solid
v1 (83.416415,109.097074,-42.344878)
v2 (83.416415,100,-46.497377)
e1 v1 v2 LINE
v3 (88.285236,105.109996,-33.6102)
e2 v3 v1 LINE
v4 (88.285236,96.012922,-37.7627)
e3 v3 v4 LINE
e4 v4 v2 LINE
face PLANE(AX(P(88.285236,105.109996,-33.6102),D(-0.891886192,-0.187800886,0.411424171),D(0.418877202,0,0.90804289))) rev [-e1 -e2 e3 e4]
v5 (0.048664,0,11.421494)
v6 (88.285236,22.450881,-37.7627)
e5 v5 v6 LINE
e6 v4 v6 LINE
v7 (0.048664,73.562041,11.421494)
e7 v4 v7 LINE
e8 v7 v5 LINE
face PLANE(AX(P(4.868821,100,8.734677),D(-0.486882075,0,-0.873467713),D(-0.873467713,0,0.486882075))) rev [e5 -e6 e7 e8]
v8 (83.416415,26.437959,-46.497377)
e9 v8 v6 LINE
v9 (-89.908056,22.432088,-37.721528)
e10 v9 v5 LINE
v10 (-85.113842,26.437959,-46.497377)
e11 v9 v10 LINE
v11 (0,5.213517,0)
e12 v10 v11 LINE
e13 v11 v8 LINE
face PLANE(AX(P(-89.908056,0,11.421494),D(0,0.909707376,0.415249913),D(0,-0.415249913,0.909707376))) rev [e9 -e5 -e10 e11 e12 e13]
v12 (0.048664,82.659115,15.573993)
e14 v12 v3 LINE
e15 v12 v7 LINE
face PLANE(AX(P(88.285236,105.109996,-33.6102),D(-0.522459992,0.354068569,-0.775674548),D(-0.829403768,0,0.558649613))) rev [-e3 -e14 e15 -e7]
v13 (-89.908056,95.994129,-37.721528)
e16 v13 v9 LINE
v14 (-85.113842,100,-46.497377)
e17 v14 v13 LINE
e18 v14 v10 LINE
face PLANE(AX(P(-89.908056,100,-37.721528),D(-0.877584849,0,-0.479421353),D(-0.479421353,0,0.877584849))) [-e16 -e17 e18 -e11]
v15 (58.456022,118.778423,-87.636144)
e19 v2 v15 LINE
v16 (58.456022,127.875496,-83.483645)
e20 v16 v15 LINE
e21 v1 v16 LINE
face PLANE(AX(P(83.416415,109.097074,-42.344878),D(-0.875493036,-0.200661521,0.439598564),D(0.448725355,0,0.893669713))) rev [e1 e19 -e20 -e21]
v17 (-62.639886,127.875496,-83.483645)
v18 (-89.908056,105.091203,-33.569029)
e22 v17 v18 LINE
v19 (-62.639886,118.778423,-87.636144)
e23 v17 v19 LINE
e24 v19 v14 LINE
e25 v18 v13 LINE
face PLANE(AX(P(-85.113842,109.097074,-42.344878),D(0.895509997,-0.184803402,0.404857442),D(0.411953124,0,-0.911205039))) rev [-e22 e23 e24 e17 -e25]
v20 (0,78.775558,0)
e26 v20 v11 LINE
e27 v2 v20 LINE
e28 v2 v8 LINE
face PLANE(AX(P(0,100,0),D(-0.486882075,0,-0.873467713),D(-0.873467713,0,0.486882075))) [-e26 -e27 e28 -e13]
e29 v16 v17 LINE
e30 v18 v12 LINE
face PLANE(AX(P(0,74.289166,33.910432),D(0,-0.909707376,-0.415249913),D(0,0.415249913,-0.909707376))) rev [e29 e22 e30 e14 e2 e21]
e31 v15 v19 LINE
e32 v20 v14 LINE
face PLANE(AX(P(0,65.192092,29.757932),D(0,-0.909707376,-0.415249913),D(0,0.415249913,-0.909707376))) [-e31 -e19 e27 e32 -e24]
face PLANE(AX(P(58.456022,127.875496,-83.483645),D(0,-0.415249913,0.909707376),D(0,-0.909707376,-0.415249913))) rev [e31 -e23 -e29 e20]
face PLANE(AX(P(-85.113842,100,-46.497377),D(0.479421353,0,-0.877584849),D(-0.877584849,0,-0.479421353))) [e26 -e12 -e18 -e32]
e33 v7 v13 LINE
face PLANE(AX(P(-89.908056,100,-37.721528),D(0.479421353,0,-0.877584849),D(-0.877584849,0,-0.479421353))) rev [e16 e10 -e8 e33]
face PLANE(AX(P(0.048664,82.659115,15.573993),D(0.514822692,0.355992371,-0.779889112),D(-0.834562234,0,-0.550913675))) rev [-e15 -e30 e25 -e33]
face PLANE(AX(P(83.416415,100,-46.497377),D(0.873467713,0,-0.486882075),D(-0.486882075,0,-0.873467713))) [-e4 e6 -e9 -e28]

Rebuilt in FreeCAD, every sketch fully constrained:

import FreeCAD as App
import Part
import Sketcher
Q = App.Units.Quantity

doc = App.newDocument("Part")
params = doc.addObject("Spreadsheet::Sheet", "Params")
for row, (alias, value) in enumerate([
    ("sketch1_length", "10 mm"),
    ("pad1_length", "100 mm"),
    ("pad2_length", "10 mm"),
], start=1):
    params.set(f"A{row}", alias)
    params.set(f"B{row}", "=" + value)
    params.setAlias(f"B{row}", alias)

body = doc.addObject("PartDesign::Body", "Body")

# Sketch on XZ plane
sketch1 = body.newObject("Sketcher::SketchObject", "Sketch")
sketch1.AttachmentSupport = (doc.getObject("XZ_Plane"), [""])
sketch1.MapMode = "FlatFace"
sketch1.addGeometry([
    Part.LineSegment(App.Vector(0, 0, 0), App.Vector(-85, -46, 0)),  # 0
    Part.LineSegment(App.Vector(-85, -46, 0), App.Vector(-90, -38, 0)),  # 1
    Part.LineSegment(App.Vector(-90, -38, 0), App.Vector(0, 11, 0)),  # 2
    Part.LineSegment(App.Vector(0, 11, 0), App.Vector(88, -38, 0)),  # 3
    Part.LineSegment(App.Vector(88, -38, 0), App.Vector(83, -46, 0)),  # 4
    Part.LineSegment(App.Vector(83, -46, 0), App.Vector(0, 0, 0)),  # 5
], False)
sketch1.addConstraint([
    Sketcher.Constraint("Coincident", 0, 2, 1, 1),
    Sketcher.Constraint("Coincident", 1, 2, 2, 1),
    Sketcher.Constraint("Coincident", 2, 2, 3, 1),
    Sketcher.Constraint("Coincident", 3, 2, 4, 1),
    Sketcher.Constraint("Coincident", 4, 2, 5, 1),
    Sketcher.Constraint("Coincident", 5, 2, 0, 1),
    Sketcher.Constraint("Coincident", 5, 2, -1, 1),
    Sketcher.Constraint("Perpendicular", 0, 1),
    Sketcher.Constraint("Perpendicular", 1, 2),
    Sketcher.Constraint("Perpendicular", 3, 4),
    Sketcher.Constraint("Perpendicular", 4, 5),
    Sketcher.Constraint("Horizontal", 0, 2, 4, 2),
    Sketcher.Constraint("Equal", 1, 4),
    Sketcher.Constraint("Distance", 1, Q("10 mm")),
    Sketcher.Constraint("Distance", 3, Q("101.018699 mm")),
    Sketcher.Constraint("DistanceY", 3, 2, -1, 1, Q("37.7627 mm")),
    Sketcher.Constraint("Distance", 2, Q("102.504868 mm")),
])
sketch1.setExpression("Constraints[13]", "Params.sketch1_length")
pad1 = body.newObject("PartDesign::Pad", "Pad")
pad1.Profile = sketch1
pad1.setExpression("Length", "Params.pad1_length")
pad1.Reversed = True

# Sketch on YZ plane
sketch2 = body.newObject("Sketcher::SketchObject", "Sketch001")
sketch2.AttachmentSupport = (doc.getObject("YZ_Plane"), [""])
sketch2.MapMode = "FlatFace"
sketch2.addGeometry([
    Part.LineSegment(App.Vector(26, -46, 0), App.Vector(0, 11, 0)),  # 0
    Part.LineSegment(App.Vector(0, 11, 0), App.Vector(0, -46, 0)),  # 1
    Part.LineSegment(App.Vector(0, -46, 0), App.Vector(26, -46, 0)),  # 2
    Part.LineSegment(App.Vector(74, 11, 0), App.Vector(100, -46, 0)),  # 3
    Part.LineSegment(App.Vector(100, -46, 0), App.Vector(100, 11, 0)),  # 4
    Part.LineSegment(App.Vector(100, 11, 0), App.Vector(74, 11, 0)),  # 5
], False)
sketch2.addConstraint([
    Sketcher.Constraint("Coincident", 0, 2, 1, 1),
    Sketcher.Constraint("Coincident", 1, 2, 2, 1),
    Sketcher.Constraint("Coincident", 2, 2, 0, 1),
    Sketcher.Constraint("Coincident", 3, 2, 4, 1),
    Sketcher.Constraint("Coincident", 4, 2, 5, 1),
    Sketcher.Constraint("Coincident", 5, 2, 3, 1),
    Sketcher.Constraint("Vertical", 1),
    Sketcher.Constraint("Horizontal", 2),
    Sketcher.Constraint("Vertical", 4),
    Sketcher.Constraint("Horizontal", 5),
    Sketcher.Constraint("PointOnObject", 0, 2, -2),
    Sketcher.Constraint("Parallel", 0, 3),
    Sketcher.Constraint("Horizontal", 2, 2, 3, 2),
    Sketcher.Constraint("Horizontal", 0, 2, 4, 2),
    Sketcher.Constraint("DistanceX", -1, 1, 3, 2, Q("100 mm")),
    Sketcher.Constraint("DistanceX", 2, 1, 2, 2, Q("26.437959 mm")),
    Sketcher.Constraint("DistanceY", 1, 2, 1, 1, Q("57.918871 mm")),
    Sketcher.Constraint("DistanceY", -1, 1, 0, 2, Q("11.421494 mm")),
])
pocket1 = body.newObject("PartDesign::Pocket", "Pocket")
pocket1.Profile = sketch2
pocket1.Type = "ThroughAll"
pocket1.Midplane = True

# Sketch on an angled plane
sketch3 = body.newObject("Sketcher::SketchObject", "Sketch002")
sketch3.Placement = App.Placement(App.Vector(0, 65.192092, 29.757932), App.Rotation(App.Vector(1, 0, 0), App.Vector(0, 0.415249913, -0.909707376), App.Vector(0, 0.909707376, 0.415249913), "ZXY"))
sketch3.addGeometry([
    Part.LineSegment(App.Vector(88, 74, 0), App.Vector(83, 84, 0)),  # 0
    Part.LineSegment(App.Vector(83, 84, 0), App.Vector(58, 129, 0)),  # 1
    Part.LineSegment(App.Vector(58, 129, 0), App.Vector(-63, 129, 0)),  # 2
    Part.LineSegment(App.Vector(-63, 129, 0), App.Vector(-85, 84, 0)),  # 3
    Part.LineSegment(App.Vector(-85, 84, 0), App.Vector(-90, 74, 0)),  # 4
    Part.LineSegment(App.Vector(-90, 74, 0), App.Vector(0, 20, 0)),  # 5
    Part.LineSegment(App.Vector(0, 20, 0), App.Vector(88, 74, 0)),  # 6
], False)
sketch3.addConstraint([
    Sketcher.Constraint("Coincident", 0, 2, 1, 1),
    Sketcher.Constraint("Coincident", 1, 2, 2, 1),
    Sketcher.Constraint("Coincident", 2, 2, 3, 1),
    Sketcher.Constraint("Coincident", 3, 2, 4, 1),
    Sketcher.Constraint("Coincident", 4, 2, 5, 1),
    Sketcher.Constraint("Coincident", 5, 2, 6, 1),
    Sketcher.Constraint("Coincident", 6, 2, 0, 1),
    Sketcher.Constraint("Horizontal", 2),
    Sketcher.Constraint("Parallel", 3, 4),
    Sketcher.Constraint("Horizontal", 0, 2, 3, 2),
    Sketcher.Constraint("DistanceX", 2, 2, 2, 1, Q("121.095908 mm")),
    Sketcher.Constraint("DistanceX", 2, 2, 0, 2, Q("146.056301 mm")),
    Sketcher.Constraint("Distance", 4, Q("10.772511 mm")),
    Sketcher.Constraint("DistanceX", 3, 2, -1, 1, Q("85.113842 mm")),
    Sketcher.Constraint("DistanceY", 0, 2, 1, 2, Q("45.221978 mm")),
    Sketcher.Constraint("DistanceY", 4, 2, 3, 2, Q("9.646892 mm")),
    Sketcher.Constraint("DistanceX", 5, 2, 0, 2, Q("83.367751 mm")),
    Sketcher.Constraint("DistanceX", 0, 2, 6, 2, Q("4.868821 mm")),
    Sketcher.Constraint("DistanceY", 5, 2, 6, 2, Q("54.06595 mm")),
    Sketcher.Constraint("Distance", 0, Q("10.765537 mm")),
    Sketcher.Constraint("DistanceY", -1, 1, 0, 2, Q("83.823998 mm")),
])
pad2 = body.newObject("PartDesign::Pad", "Pad001")
pad2.Profile = sketch3
pad2.setExpression("Length", "Params.pad2_length")

doc.recompute()
